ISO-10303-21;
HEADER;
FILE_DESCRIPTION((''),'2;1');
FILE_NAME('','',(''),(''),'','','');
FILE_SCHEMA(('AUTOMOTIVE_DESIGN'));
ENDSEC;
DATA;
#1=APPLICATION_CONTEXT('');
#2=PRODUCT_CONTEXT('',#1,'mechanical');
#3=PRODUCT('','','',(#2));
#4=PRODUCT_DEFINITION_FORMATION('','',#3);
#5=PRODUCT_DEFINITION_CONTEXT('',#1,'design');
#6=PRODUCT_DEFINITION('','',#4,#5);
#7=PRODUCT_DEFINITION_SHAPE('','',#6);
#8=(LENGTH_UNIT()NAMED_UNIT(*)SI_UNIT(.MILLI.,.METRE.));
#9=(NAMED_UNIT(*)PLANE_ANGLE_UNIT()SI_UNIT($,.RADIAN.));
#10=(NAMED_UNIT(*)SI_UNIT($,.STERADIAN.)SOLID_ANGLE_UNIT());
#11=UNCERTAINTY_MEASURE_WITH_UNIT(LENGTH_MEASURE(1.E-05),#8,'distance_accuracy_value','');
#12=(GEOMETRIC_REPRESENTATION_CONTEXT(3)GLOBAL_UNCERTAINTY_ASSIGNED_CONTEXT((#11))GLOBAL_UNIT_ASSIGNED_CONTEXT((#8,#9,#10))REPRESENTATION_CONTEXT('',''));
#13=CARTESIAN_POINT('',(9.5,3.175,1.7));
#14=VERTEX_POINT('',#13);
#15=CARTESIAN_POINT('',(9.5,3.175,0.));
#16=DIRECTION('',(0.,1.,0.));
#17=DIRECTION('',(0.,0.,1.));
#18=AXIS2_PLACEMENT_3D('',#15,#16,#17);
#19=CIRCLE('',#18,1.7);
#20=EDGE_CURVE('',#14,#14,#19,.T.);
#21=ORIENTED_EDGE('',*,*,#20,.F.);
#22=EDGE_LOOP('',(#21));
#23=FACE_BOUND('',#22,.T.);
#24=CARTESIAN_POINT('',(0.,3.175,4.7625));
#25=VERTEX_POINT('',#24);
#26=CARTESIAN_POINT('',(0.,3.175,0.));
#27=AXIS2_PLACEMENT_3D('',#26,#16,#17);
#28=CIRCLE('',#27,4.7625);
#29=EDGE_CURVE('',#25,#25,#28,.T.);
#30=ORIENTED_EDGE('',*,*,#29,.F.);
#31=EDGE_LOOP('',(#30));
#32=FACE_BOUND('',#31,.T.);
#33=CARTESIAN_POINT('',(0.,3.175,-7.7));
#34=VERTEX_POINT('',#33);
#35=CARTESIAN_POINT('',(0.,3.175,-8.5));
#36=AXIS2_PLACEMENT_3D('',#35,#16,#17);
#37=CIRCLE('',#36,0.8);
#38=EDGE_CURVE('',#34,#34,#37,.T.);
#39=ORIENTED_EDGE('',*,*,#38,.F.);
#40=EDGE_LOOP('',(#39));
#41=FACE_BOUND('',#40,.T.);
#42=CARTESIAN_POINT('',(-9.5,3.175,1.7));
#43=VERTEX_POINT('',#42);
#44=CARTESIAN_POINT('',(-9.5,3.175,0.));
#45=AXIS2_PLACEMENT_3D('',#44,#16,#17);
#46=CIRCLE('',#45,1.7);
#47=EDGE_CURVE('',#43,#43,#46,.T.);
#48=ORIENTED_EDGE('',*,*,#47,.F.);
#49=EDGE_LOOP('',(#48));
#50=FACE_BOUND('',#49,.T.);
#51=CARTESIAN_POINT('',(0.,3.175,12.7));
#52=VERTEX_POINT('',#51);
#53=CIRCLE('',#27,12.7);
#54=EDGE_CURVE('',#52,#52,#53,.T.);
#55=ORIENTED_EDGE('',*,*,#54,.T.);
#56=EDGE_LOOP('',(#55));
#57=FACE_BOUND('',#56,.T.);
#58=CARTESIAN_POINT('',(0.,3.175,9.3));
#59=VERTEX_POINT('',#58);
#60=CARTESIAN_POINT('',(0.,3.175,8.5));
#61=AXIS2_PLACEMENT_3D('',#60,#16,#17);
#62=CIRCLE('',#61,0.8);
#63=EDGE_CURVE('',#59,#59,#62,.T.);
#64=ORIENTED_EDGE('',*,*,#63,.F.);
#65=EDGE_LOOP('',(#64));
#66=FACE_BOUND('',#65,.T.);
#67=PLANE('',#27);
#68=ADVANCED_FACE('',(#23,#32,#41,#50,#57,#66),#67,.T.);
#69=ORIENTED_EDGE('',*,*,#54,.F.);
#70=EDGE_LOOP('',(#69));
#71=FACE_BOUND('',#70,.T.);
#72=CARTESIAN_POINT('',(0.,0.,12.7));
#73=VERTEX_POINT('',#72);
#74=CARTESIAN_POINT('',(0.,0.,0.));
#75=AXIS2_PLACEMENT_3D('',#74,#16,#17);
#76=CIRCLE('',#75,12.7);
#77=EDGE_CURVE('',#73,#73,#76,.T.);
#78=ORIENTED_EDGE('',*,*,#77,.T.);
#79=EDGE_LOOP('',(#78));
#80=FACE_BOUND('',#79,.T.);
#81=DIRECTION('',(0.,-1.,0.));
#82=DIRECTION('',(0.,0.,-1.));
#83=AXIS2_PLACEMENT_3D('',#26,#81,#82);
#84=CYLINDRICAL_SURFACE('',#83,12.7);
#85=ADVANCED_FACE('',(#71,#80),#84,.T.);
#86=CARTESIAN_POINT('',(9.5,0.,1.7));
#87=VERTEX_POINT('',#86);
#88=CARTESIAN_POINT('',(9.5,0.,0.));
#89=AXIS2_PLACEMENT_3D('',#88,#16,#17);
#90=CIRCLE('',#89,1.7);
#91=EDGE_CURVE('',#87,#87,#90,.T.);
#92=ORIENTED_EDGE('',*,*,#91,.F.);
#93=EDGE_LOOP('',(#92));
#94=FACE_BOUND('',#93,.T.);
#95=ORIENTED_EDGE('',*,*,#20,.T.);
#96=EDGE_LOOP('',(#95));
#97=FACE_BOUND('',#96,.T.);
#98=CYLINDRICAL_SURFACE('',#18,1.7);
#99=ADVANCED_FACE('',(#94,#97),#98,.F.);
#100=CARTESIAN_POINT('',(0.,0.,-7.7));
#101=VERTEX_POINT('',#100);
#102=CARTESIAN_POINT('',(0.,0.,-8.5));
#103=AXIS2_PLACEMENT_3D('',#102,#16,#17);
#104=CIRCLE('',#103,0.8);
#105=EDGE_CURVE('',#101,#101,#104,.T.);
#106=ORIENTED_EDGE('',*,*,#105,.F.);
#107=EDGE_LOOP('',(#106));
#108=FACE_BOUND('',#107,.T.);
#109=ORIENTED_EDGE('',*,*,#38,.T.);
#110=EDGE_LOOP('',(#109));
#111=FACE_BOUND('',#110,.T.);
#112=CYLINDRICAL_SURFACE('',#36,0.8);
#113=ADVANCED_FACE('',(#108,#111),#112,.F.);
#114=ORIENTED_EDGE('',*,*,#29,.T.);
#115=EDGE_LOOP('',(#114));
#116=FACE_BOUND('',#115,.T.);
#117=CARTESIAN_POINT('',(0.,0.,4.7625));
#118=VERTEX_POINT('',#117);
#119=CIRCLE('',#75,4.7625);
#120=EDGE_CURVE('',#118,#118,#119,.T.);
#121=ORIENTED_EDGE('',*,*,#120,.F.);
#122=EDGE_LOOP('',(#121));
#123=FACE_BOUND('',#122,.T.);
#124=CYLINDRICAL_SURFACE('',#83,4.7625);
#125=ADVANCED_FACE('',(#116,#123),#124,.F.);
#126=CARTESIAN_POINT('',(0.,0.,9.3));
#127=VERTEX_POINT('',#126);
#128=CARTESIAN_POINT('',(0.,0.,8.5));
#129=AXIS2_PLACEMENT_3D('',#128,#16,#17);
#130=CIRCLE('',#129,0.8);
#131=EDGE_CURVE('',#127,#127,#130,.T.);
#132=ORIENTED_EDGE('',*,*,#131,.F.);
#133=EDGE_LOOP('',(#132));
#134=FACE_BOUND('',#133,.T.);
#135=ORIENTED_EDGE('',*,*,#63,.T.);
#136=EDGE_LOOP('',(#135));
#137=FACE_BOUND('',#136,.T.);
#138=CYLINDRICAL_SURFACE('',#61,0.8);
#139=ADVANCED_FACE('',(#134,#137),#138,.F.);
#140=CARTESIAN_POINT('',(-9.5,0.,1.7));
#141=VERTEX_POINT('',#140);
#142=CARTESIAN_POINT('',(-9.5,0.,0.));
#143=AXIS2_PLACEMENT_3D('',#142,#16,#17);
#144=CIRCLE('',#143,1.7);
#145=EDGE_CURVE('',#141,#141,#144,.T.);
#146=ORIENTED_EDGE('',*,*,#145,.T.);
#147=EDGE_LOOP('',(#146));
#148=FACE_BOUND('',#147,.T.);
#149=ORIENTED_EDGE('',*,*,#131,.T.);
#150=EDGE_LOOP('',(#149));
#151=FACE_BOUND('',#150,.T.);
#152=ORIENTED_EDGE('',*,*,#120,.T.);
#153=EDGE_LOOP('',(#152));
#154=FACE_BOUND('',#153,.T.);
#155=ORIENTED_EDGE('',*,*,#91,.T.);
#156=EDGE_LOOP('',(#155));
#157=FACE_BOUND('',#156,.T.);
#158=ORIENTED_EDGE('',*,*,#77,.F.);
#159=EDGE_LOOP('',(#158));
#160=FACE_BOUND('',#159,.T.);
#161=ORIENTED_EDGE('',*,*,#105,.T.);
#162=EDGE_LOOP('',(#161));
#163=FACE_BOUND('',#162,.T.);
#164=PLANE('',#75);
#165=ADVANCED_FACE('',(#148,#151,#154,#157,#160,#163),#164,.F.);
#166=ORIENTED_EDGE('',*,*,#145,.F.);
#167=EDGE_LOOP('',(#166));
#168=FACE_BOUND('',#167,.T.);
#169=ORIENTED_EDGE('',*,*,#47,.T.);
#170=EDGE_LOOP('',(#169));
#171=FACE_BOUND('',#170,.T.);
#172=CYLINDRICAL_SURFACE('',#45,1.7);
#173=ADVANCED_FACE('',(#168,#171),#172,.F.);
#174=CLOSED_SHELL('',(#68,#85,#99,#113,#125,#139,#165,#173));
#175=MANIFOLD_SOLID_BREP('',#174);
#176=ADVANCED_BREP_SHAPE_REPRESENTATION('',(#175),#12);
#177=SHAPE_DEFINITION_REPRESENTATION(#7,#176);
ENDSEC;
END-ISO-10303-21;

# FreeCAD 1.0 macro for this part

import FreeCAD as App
import Part
import Sketcher
Q = App.Units.Quantity

doc = App.newDocument("Part")
body = doc.addObject("PartDesign::Body", "Body")

sketch1 = body.newObject("Sketcher::SketchObject", "Sketch")
sketch1.AttachmentSupport = (doc.getObject("XZ_Plane"), [""])
sketch1.MapMode = "FlatFace"
sketch1.addGeometry([
    Part.Circle(App.Vector(0, 0, 0), App.Vector(0, 0, 1), 12.7),
    Part.Circle(App.Vector(0, 0, 0), App.Vector(0, 0, 1), 4.8),
], False)
sketch1.addConstraint([
    Sketcher.Constraint("Coincident", 0, 3, -1, 1),
    Sketcher.Constraint("Coincident", 1, 3, -1, 1),
    Sketcher.Constraint("Diameter", 0, Q("1 in")),
    Sketcher.Constraint("Diameter", 1, Q("0.375 in")),
])
pad1 = body.newObject("PartDesign::Pad", "Pad")
pad1.Profile = sketch1
pad1.Length = Q("0.125 in")
pad1.Reversed = True

sketch2 = body.newObject("Sketcher::SketchObject", "Sketch001")
sketch2.AttachmentSupport = (doc.getObject("XZ_Plane"), [""])
sketch2.MapMode = "FlatFace"
sketch2.AttachmentOffset = App.Placement(App.Vector(0, 0, -0.125 * 25.4), App.Rotation())
sketch2.addGeometry([
    Part.Circle(App.Vector(-9.5, 0, 0), App.Vector(0, 0, 1), 1.7),
    Part.Circle(App.Vector(9.5, 0, 0), App.Vector(0, 0, 1), 1.7),
], False)
sketch2.addConstraint([
    Sketcher.Constraint("Equal", 0, 1),
    Sketcher.Constraint("Symmetric", 0, 3, 1, 3, -1, 1),
    Sketcher.Constraint("PointOnObject", 0, 3, -1),
    Sketcher.Constraint("Diameter", 0, 3.4),
    Sketcher.Constraint("DistanceX", 0, 3, -1, 1, 9.5),
])
doc.recompute()
hole = body.newObject("PartDesign::Hole", "Hole")
hole.Profile = sketch2
hole.ThreadType = "None"
hole.Diameter = 3.4
hole.DepthType = "Dimension"
hole.Depth = Q("0.25 in")
hole.DrillPoint = "Angled"
hole.DrillPointAngle = 118
hole.Reversed = True

sketch3 = body.newObject("Sketcher::SketchObject", "Sketch002")
sketch3.AttachmentSupport = (doc.getObject("XZ_Plane"), [""])
sketch3.MapMode = "FlatFace"
sketch3.AttachmentOffset = App.Placement(App.Vector(0, 0, -0.125 * 25.4), App.Rotation())
sketch3.addGeometry([
    Part.Circle(App.Vector(0, -8.5, 0), App.Vector(0, 0, 1), 0.8),
    Part.Circle(App.Vector(0, 8.5, 0), App.Vector(0, 0, 1), 0.8),
], False)
sketch3.addConstraint([
    Sketcher.Constraint("Equal", 0, 1),
    Sketcher.Constraint("Symmetric", 0, 3, 1, 3, -1, 1),
    Sketcher.Constraint("PointOnObject", 0, 3, -2),
    Sketcher.Constraint("Diameter", 0, 1.6),
    Sketcher.Constraint("DistanceY", 0, 3, -1, 1, 8.5),
])
doc.recompute()
hole2 = body.newObject("PartDesign::Hole", "Hole001")
hole2.Profile = sketch3
hole2.ThreadType = "None"
hole2.Diameter = 1.6
hole2.DepthType = "Dimension"
hole2.Depth = Q("0.25 in")
hole2.DrillPoint = "Angled"
hole2.DrillPointAngle = 118
hole2.Reversed = True

doc.recompute()
